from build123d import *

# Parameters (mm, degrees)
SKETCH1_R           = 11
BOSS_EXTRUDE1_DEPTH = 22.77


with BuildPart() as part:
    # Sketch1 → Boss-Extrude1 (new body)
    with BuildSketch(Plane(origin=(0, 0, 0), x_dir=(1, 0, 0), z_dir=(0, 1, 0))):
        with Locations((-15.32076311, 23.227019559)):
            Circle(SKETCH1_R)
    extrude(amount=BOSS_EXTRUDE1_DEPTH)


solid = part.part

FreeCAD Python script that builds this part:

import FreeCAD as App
import Part
import Sketcher

doc = App.newDocument("Part")
params = doc.addObject("Spreadsheet::Sheet", "Params")
for row, (alias, value) in enumerate([
    ("sketch1_diameter", "22 mm"),
    ("pad1_length", "22.77 mm"),
], start=1):
    params.set(f"A{row}", alias)
    params.set(f"B{row}", "=" + value)
    params.setAlias(f"B{row}", alias)

body = doc.addObject("PartDesign::Body", "Body")

sketch1 = doc.addObject("Sketcher::SketchObject", "Sketch")
body.addObject(sketch1)
sketch1.AttachmentSupport = (doc.XZ_Plane, [""])
sketch1.MapMode = "FlatFace"
sketch1.addGeometry(Part.Circle(App.Vector(-15.320763, -23.22702, 0), App.Vector(0, 0, 1), 11), False)
sketch1.addConstraint(Sketcher.Constraint("Diameter", 0, 22.0))
sketch1.addConstraint(Sketcher.Constraint("DistanceY", 0, 3, -1, 1, 23.22702))
sketch1.addConstraint(Sketcher.Constraint("DistanceX", 0, 3, -1, 1, 15.320763))
sketch1.setExpression("Constraints[0]", "Params.sketch1_diameter")
pad1 = doc.addObject("PartDesign::Pad", "Pad")
body.addObject(pad1)
pad1.Profile = sketch1
pad1.setExpression("Length", "Params.pad1_length")
pad1.Reversed = True

doc.recompute()
